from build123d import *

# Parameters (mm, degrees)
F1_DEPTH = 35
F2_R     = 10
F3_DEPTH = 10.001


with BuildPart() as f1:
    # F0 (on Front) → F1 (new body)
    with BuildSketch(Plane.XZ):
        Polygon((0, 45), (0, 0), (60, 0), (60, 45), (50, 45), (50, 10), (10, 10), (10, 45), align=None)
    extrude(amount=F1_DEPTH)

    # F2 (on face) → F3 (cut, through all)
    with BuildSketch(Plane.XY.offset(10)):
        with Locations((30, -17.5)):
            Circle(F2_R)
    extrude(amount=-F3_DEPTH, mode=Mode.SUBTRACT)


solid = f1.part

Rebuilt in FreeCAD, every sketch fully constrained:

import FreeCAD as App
import Part
import Sketcher


def add_polygon(sketch, points):
    """Adds a closed chain of lines whose ends are joined by coincident constraints."""
    first, n = sketch.GeometryCount, len(points)
    for a, b in zip(points, points[1:] + points[:1]):
        sketch.addGeometry(Part.LineSegment(App.Vector(*a, 0), App.Vector(*b, 0)), False)
    for i in range(n):
        sketch.addConstraint(Sketcher.Constraint("Coincident", first + i, 2, first + (i + 1) % n, 1))

doc = App.newDocument("Part")
body = doc.addObject("PartDesign::Body", "Body")

# Sketch on XZ plane
sketch1 = doc.addObject("Sketcher::SketchObject", "Sketch")
body.addObject(sketch1)
sketch1.AttachmentSupport = (doc.XZ_Plane, [""])
sketch1.MapMode = "FlatFace"
add_polygon(sketch1, [(0, 45), (0, 0), (60, 0), (60, 45), (50, 45), (50, 10), (10, 10), (10, 45)])  # lines 0-7
sketch1.addConstraint(Sketcher.Constraint("Vertical", 0))
sketch1.addConstraint(Sketcher.Constraint("Horizontal", 1))
sketch1.addConstraint(Sketcher.Constraint("Vertical", 2))
sketch1.addConstraint(Sketcher.Constraint("Horizontal", 3))
sketch1.addConstraint(Sketcher.Constraint("Vertical", 4))
sketch1.addConstraint(Sketcher.Constraint("Horizontal", 5))
sketch1.addConstraint(Sketcher.Constraint("Vertical", 6))
sketch1.addConstraint(Sketcher.Constraint("Horizontal", 7))
sketch1.addConstraint(Sketcher.Constraint("Coincident", 0, 2, -1, 1))
sketch1.addConstraint(Sketcher.Constraint("Horizontal", 3, 2, 6, 2))
sketch1.addConstraint(Sketcher.Constraint("Equal", 3, 7))
sketch1.addConstraint(Sketcher.Constraint("DistanceX", 1, 1, 1, 2, 60.0))
sketch1.addConstraint(Sketcher.Constraint("DistanceX", 3, 2, 3, 1, 10.0))
sketch1.addConstraint(Sketcher.Constraint("DistanceY", 0, 2, 0, 1, 45.0))
sketch1.addConstraint(Sketcher.Constraint("DistanceY", 4, 2, 4, 1, 35.0))
pad1 = doc.addObject("PartDesign::Pad", "Pad")
body.addObject(pad1)
pad1.Profile = sketch1
pad1.Length = 35

# Sketch on XY plane
sketch2 = doc.addObject("Sketcher::SketchObject", "Sketch001")
body.addObject(sketch2)
sketch2.AttachmentSupport = (doc.XY_Plane, [""])
sketch2.MapMode = "FlatFace"
sketch2.AttachmentOffset = App.Placement(App.Vector(0, 0, 10), App.Rotation())
sketch2.addGeometry(Part.Circle(App.Vector(30, -17.5, 0), App.Vector(0, 0, 1), 10), False)
sketch2.addConstraint(Sketcher.Constraint("Diameter", 0, 20.0))
sketch2.addConstraint(Sketcher.Constraint("DistanceX", -1, 1, 0, 3, 30.0))
sketch2.addConstraint(Sketcher.Constraint("DistanceY", 0, 3, -1, 1, 17.5))
pocket1 = doc.addObject("PartDesign::Pocket", "Pocket")
body.addObject(pocket1)
pocket1.Profile = sketch2
pocket1.Type = "ThroughAll"

doc.recompute()
